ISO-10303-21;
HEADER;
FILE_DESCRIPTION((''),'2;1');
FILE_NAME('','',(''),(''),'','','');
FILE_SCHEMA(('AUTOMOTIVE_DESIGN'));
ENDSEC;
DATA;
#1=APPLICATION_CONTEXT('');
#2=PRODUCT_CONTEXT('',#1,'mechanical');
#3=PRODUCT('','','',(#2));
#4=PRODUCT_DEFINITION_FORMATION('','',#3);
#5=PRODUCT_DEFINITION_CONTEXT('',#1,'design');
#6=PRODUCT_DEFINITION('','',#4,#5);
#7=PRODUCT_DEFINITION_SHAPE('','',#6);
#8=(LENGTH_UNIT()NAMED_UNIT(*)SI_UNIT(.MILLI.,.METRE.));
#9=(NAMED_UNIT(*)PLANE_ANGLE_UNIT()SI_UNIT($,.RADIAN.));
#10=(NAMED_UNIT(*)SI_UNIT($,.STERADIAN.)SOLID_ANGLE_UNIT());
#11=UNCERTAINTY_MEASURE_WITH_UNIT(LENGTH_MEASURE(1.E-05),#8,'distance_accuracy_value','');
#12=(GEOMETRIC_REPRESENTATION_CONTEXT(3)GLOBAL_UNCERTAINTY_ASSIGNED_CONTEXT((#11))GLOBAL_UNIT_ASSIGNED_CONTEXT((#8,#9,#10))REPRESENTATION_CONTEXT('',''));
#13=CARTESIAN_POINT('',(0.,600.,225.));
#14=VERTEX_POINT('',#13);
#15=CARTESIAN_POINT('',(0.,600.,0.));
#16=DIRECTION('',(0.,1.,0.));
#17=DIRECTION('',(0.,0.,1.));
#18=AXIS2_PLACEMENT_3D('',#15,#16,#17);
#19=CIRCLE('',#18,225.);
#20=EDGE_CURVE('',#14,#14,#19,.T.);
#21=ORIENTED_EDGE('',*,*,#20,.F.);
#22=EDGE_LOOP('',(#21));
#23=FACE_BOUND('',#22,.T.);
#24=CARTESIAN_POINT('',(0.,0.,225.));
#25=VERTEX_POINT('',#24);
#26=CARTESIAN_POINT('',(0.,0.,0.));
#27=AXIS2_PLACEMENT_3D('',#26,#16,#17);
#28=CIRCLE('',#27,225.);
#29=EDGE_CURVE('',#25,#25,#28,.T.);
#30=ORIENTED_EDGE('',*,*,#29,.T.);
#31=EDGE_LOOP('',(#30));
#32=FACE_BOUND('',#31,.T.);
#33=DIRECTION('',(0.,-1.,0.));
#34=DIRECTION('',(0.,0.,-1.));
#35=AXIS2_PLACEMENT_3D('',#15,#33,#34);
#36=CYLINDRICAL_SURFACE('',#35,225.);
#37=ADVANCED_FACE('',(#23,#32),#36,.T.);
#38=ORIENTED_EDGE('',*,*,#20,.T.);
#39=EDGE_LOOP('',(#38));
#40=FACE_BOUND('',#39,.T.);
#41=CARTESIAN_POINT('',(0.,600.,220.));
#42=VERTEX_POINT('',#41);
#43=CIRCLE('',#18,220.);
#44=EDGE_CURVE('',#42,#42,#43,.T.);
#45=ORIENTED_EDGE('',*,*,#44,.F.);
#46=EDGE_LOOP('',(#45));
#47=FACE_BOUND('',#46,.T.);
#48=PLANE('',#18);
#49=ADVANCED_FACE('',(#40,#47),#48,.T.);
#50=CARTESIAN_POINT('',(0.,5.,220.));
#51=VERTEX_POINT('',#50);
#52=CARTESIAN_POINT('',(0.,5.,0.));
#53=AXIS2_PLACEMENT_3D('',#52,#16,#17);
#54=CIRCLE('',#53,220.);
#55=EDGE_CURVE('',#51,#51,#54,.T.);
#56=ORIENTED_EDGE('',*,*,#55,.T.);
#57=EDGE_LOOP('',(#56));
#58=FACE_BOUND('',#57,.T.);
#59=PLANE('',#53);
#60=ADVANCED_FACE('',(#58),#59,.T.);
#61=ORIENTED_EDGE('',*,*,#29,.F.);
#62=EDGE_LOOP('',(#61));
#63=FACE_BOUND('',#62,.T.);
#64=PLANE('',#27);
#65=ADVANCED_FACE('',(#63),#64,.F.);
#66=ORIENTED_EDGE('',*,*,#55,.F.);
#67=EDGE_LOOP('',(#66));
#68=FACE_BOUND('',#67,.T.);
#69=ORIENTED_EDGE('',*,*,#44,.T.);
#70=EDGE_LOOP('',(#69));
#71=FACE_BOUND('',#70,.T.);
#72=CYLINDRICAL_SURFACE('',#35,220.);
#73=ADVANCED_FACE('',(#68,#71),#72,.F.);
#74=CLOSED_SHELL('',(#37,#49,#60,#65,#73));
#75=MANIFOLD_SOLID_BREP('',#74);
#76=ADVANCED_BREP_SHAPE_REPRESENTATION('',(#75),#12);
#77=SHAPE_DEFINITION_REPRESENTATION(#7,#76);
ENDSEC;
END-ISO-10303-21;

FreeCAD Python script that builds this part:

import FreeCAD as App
import Part
import Sketcher


def faces_at(feature, points):
    """Names of the faces that lie closest to the given points."""
    faces = feature.Shape.Faces
    near = lambda p: min(range(len(faces)), key=lambda i: faces[i].distToShape(Part.Vertex(*p))[0])
    return sorted({f"Face{near(p) + 1}" for p in points})

doc = App.newDocument("Part")
body = doc.addObject("PartDesign::Body", "Body")

# Sketch on XZ plane
sketch1 = body.newObject("Sketcher::SketchObject", "Sketch")
sketch1.AttachmentSupport = (doc.getObject("XZ_Plane"), [""])
sketch1.MapMode = "FlatFace"
sketch1.addGeometry(Part.Circle(App.Vector(0, 0, 0), App.Vector(0, 0, 1), 225), False)
sketch1.addConstraint([
    Sketcher.Constraint("Coincident", 0, 3, -1, 1),
    Sketcher.Constraint("Diameter", 0, 450.0),
])
pad1 = body.newObject("PartDesign::Pad", "Pad")
pad1.Profile = sketch1
pad1.Length = 600
pad1.Reversed = True
doc.recompute()

thickness = body.newObject("PartDesign::Thickness", "Thickness")
thickness.Base = (pad1, faces_at(pad1, [(0, 600, 0)]))
thickness.Value = 5
thickness.Reversed = True
thickness.Join = "Intersection"

doc.recompute()
